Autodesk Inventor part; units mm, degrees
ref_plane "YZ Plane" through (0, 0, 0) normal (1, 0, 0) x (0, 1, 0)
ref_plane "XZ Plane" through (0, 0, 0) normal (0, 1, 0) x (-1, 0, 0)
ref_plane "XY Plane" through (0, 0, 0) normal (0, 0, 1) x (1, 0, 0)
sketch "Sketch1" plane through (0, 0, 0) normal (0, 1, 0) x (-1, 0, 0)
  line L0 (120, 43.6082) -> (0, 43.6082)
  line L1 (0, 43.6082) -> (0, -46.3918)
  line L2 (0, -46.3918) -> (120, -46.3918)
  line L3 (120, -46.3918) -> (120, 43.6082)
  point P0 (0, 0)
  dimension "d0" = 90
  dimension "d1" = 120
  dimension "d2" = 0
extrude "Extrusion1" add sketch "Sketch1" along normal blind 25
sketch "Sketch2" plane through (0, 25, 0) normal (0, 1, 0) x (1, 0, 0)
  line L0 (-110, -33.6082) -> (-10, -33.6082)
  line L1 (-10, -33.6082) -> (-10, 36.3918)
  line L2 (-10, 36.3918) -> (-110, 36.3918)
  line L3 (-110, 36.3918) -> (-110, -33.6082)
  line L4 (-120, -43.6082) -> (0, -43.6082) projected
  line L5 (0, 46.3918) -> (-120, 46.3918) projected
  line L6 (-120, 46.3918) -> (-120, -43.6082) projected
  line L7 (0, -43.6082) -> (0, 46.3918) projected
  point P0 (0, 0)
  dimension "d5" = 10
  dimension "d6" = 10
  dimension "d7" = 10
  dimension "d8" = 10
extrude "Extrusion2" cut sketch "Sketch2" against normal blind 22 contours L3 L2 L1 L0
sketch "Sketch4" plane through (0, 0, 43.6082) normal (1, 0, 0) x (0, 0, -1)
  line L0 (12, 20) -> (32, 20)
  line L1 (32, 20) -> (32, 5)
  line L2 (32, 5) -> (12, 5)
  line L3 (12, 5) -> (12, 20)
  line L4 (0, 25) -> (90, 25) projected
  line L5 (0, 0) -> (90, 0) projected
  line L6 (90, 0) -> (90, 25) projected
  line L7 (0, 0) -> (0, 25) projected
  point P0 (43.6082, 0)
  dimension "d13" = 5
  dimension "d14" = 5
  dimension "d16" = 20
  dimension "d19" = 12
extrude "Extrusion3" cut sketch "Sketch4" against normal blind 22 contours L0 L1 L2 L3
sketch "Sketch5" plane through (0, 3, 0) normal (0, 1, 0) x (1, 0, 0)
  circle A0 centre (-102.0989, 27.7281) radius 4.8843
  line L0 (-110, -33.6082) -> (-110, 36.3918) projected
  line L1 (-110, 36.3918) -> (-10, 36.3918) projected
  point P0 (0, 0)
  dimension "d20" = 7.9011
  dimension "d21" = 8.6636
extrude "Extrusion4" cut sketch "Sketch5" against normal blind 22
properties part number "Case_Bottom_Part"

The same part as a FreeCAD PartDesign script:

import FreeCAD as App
import Part
import Sketcher
from FreeCAD import Vector

doc = App.newDocument("Part")
body = doc.addObject("PartDesign::Body", "Body")

# Sketch on XZ plane
sketch1 = body.newObject("Sketcher::SketchObject", "Sketch")
sketch1.AttachmentSupport = (doc.getObject("XZ_Plane"), [""])
sketch1.MapMode = "FlatFace"
sketch1.addGeometry([
    Part.LineSegment(Vector(-120, -46, 0), Vector(-120, 44, 0)),
    Part.LineSegment(Vector(-120, 44, 0), Vector(0, 44, 0)),
    Part.LineSegment(Vector(0, 44, 0), Vector(0, -46, 0)),
    Part.LineSegment(Vector(0, -46, 0), Vector(-120, -46, 0)),
], False)
sketch1.addConstraint([
    Sketcher.Constraint("Coincident", 0, 2, 1, 1),
    Sketcher.Constraint("Coincident", 1, 2, 2, 1),
    Sketcher.Constraint("Coincident", 2, 2, 3, 1),
    Sketcher.Constraint("Coincident", 3, 2, 0, 1),
    Sketcher.Constraint("Vertical", 0),
    Sketcher.Constraint("Horizontal", 1),
    Sketcher.Constraint("Vertical", 2),
    Sketcher.Constraint("Horizontal", 3),
    Sketcher.Constraint("PointOnObject", 1, 2, -2),
    Sketcher.Constraint("DistanceX", 1, 1, 1, 2, 120.0),
    Sketcher.Constraint("DistanceY", 0, 1, 0, 2, 90.0),
    Sketcher.Constraint("DistanceY", -1, 1, 0, 2, 43.6082),
])
pad1 = body.newObject("PartDesign::Pad", "Pad")
pad1.Profile = sketch1
pad1.Length = 25
pad1.Reversed = True

# Sketch on XZ plane
sketch2 = body.newObject("Sketcher::SketchObject", "Sketch001")
sketch2.AttachmentSupport = (doc.getObject("XZ_Plane"), [""])
sketch2.MapMode = "FlatFace"
sketch2.AttachmentOffset = App.Placement(Vector(0, 0, -25), App.Rotation())
sketch2.addGeometry([
    Part.LineSegment(Vector(-110, -36, 0), Vector(-110, 34, 0)),
    Part.LineSegment(Vector(-110, 34, 0), Vector(-10, 34, 0)),
    Part.LineSegment(Vector(-10, 34, 0), Vector(-10, -36, 0)),
    Part.LineSegment(Vector(-10, -36, 0), Vector(-110, -36, 0)),
], False)
sketch2.addConstraint([
    Sketcher.Constraint("Coincident", 0, 2, 1, 1),
    Sketcher.Constraint("Coincident", 1, 2, 2, 1),
    Sketcher.Constraint("Coincident", 2, 2, 3, 1),
    Sketcher.Constraint("Coincident", 3, 2, 0, 1),
    Sketcher.Constraint("Vertical", 0),
    Sketcher.Constraint("Horizontal", 1),
    Sketcher.Constraint("Vertical", 2),
    Sketcher.Constraint("Horizontal", 3),
    Sketcher.Constraint("DistanceX", 1, 2, -1, 1, 10.0),
    Sketcher.Constraint("DistanceX", 1, 1, 1, 2, 100.0),
    Sketcher.Constraint("DistanceY", 0, 1, 0, 2, 70.0),
    Sketcher.Constraint("DistanceY", -1, 1, 0, 2, 33.6082),
])
pocket1 = body.newObject("PartDesign::Pocket", "Pocket")
pocket1.Profile = sketch2
pocket1.Length = 22
pocket1.Reversed = True

# Sketch on YZ plane
sketch3 = body.newObject("Sketcher::SketchObject", "Sketch002")
sketch3.AttachmentSupport = (doc.getObject("YZ_Plane"), [""])
sketch3.MapMode = "FlatFace"
sketch3.addGeometry([
    Part.LineSegment(Vector(20, 12, 0), Vector(20, 32, 0)),
    Part.LineSegment(Vector(20, 32, 0), Vector(5, 32, 0)),
    Part.LineSegment(Vector(5, 32, 0), Vector(5, 12, 0)),
    Part.LineSegment(Vector(5, 12, 0), Vector(20, 12, 0)),
], False)
sketch3.addConstraint([
    Sketcher.Constraint("Coincident", 0, 2, 1, 1),
    Sketcher.Constraint("Coincident", 1, 2, 2, 1),
    Sketcher.Constraint("Coincident", 2, 2, 3, 1),
    Sketcher.Constraint("Coincident", 3, 2, 0, 1),
    Sketcher.Constraint("Vertical", 0),
    Sketcher.Constraint("Horizontal", 1),
    Sketcher.Constraint("Vertical", 2),
    Sketcher.Constraint("Horizontal", 3),
    Sketcher.Constraint("DistanceY", 0, 1, 0, 2, 20.0),
    Sketcher.Constraint("DistanceX", -1, 1, 0, 2, 20.0),
    Sketcher.Constraint("DistanceX", -1, 1, 1, 2, 5.0),
    Sketcher.Constraint("DistanceY", -1, 1, 0, 2, 31.6082),
])
pocket2 = body.newObject("PartDesign::Pocket", "Pocket001")
pocket2.Profile = sketch3
pocket2.Length = 22

# Sketch on XZ plane
sketch4 = body.newObject("Sketcher::SketchObject", "Sketch003")
sketch4.AttachmentSupport = (doc.getObject("XZ_Plane"), [""])
sketch4.MapMode = "FlatFace"
sketch4.AttachmentOffset = App.Placement(Vector(0, 0, -3), App.Rotation())
sketch4.addGeometry(Part.Circle(Vector(-102.1, -27.7, 0), Vector(0, 0, 1), 4.9), False)
sketch4.addConstraint([
    Sketcher.Constraint("Diameter", 0, 9.7686),
    Sketcher.Constraint("DistanceX", 0, 3, -1, 1, 102.099),
    Sketcher.Constraint("DistanceY", 0, 3, -1, 1, 27.728),
])
pocket3 = body.newObject("PartDesign::Pocket", "Pocket002")
pocket3.Profile = sketch4
pocket3.Length = 22
pocket3.Reversed = True

doc.recompute()
